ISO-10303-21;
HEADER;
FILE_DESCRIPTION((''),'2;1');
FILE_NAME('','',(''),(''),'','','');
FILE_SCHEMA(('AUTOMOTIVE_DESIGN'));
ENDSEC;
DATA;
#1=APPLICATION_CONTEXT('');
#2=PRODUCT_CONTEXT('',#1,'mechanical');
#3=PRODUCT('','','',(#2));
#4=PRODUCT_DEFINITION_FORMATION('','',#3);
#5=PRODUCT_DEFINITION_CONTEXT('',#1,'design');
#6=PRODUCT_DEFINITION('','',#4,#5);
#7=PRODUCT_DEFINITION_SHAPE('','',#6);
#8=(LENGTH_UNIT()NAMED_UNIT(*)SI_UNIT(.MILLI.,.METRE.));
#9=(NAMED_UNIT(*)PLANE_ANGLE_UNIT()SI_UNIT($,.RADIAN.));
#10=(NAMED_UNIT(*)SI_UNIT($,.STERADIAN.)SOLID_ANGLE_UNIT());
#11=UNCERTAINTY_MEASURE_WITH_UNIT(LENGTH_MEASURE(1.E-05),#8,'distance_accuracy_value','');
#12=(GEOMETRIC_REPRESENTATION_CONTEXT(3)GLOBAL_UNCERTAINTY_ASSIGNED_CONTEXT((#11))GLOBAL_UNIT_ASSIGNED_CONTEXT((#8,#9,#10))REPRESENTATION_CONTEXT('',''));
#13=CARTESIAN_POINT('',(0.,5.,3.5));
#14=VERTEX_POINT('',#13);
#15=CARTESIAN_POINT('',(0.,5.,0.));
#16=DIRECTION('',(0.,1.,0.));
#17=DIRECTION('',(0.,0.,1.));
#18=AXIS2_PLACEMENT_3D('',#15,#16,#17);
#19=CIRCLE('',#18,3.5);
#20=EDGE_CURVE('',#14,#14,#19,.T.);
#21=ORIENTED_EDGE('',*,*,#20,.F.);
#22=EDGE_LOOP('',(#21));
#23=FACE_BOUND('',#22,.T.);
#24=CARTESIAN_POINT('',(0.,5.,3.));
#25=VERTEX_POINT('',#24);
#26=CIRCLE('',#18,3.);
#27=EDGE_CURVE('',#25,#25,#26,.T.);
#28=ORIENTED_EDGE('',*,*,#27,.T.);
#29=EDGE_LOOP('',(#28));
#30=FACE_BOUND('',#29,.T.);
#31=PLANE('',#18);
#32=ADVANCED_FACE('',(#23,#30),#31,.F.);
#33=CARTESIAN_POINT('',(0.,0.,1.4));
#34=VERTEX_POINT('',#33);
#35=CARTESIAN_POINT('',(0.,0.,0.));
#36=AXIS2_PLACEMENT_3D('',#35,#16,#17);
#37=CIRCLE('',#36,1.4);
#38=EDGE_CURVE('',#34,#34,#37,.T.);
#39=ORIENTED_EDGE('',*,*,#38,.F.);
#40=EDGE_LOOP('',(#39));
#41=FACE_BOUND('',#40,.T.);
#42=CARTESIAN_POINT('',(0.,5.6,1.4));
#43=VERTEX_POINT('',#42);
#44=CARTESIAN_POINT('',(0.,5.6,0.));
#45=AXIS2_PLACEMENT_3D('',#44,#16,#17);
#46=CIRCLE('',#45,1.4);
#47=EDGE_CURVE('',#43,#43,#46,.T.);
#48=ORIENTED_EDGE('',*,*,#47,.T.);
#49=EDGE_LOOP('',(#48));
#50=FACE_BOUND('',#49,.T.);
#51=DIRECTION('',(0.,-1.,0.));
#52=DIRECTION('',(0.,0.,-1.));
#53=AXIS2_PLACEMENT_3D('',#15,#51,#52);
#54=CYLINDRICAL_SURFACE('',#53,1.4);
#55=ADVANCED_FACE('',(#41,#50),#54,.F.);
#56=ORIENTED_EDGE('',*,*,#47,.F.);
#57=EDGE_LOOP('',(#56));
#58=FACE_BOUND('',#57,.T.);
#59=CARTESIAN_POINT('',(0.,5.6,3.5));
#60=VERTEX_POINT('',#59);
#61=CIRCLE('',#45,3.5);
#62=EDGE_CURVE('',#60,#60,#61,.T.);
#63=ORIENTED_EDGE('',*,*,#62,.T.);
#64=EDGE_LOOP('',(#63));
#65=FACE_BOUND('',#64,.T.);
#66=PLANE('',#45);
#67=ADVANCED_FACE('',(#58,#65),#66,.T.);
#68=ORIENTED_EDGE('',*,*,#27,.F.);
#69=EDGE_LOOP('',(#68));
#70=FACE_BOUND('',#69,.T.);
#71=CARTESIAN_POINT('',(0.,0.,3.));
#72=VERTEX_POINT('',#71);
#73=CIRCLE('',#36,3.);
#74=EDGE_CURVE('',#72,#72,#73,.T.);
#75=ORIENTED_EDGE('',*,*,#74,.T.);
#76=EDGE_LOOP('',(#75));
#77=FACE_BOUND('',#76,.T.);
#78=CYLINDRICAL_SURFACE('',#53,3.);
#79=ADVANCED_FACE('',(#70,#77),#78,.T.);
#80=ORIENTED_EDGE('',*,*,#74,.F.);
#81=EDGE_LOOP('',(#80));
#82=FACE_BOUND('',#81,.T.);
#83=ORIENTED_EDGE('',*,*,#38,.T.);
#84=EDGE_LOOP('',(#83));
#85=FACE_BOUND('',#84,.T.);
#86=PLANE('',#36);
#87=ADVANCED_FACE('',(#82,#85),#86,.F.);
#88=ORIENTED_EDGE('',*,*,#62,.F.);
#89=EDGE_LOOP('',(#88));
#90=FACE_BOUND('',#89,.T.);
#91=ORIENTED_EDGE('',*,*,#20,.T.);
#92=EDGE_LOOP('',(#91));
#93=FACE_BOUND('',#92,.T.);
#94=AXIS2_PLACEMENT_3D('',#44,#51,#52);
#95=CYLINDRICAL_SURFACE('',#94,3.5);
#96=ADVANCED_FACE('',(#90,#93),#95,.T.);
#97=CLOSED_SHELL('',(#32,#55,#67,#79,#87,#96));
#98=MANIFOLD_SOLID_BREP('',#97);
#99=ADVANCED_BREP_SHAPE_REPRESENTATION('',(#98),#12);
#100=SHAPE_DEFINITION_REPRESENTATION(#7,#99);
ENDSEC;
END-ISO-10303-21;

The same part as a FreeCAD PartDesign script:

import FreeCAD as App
import Part
import Sketcher
Q = App.Units.Quantity

doc = App.newDocument("Part")
body = doc.addObject("PartDesign::Body", "Body")

# Sketch on XZ plane
sketch1 = doc.addObject("Sketcher::SketchObject", "Sketch")
body.addObject(sketch1)
sketch1.AttachmentSupport = (doc.XZ_Plane, [""])
sketch1.MapMode = "FlatFace"
sketch1.addGeometry(Part.Circle(App.Vector(0, 0, 0), App.Vector(0, 0, 1), 3), False)
sketch1.addGeometry(Part.Circle(App.Vector(0, 0, 0), App.Vector(0, 0, 1), 1.4), False)
sketch1.addConstraint(Sketcher.Constraint("Coincident", 0, 3, -1, 1))
sketch1.addConstraint(Sketcher.Constraint("Coincident", 1, 3, -1, 1))
sketch1.addConstraint(Sketcher.Constraint("Diameter", 0, Q("6 mm")))
sketch1.addConstraint(Sketcher.Constraint("Diameter", 1, Q("2.8 mm")))
pad1 = doc.addObject("PartDesign::Pad", "Pad")
body.addObject(pad1)
pad1.Profile = sketch1
pad1.Length = 5
pad1.Reversed = True

# Sketch on XZ plane
sketch2 = doc.addObject("Sketcher::SketchObject", "Sketch001")
body.addObject(sketch2)
sketch2.AttachmentSupport = (doc.XZ_Plane, [""])
sketch2.MapMode = "FlatFace"
sketch2.AttachmentOffset = App.Placement(App.Vector(0, 0, -5), App.Rotation())
sketch2.addGeometry(Part.Circle(App.Vector(0, 0, 0), App.Vector(0, 0, 1), 3.5), False)
sketch2.addGeometry(Part.Circle(App.Vector(0, 0, 0), App.Vector(0, 0, 1), 1.4), False)
sketch2.addConstraint(Sketcher.Constraint("Coincident", 0, 3, -1, 1))
sketch2.addConstraint(Sketcher.Constraint("Coincident", 1, 3, -1, 1))
sketch2.addConstraint(Sketcher.Constraint("Diameter", 0, Q("7 mm")))
sketch2.addConstraint(Sketcher.Constraint("Diameter", 1, Q("2.8 mm")))
pad2 = doc.addObject("PartDesign::Pad", "Pad001")
body.addObject(pad2)
pad2.Profile = sketch2
pad2.Length = 0.6
pad2.Reversed = True

doc.recompute()
